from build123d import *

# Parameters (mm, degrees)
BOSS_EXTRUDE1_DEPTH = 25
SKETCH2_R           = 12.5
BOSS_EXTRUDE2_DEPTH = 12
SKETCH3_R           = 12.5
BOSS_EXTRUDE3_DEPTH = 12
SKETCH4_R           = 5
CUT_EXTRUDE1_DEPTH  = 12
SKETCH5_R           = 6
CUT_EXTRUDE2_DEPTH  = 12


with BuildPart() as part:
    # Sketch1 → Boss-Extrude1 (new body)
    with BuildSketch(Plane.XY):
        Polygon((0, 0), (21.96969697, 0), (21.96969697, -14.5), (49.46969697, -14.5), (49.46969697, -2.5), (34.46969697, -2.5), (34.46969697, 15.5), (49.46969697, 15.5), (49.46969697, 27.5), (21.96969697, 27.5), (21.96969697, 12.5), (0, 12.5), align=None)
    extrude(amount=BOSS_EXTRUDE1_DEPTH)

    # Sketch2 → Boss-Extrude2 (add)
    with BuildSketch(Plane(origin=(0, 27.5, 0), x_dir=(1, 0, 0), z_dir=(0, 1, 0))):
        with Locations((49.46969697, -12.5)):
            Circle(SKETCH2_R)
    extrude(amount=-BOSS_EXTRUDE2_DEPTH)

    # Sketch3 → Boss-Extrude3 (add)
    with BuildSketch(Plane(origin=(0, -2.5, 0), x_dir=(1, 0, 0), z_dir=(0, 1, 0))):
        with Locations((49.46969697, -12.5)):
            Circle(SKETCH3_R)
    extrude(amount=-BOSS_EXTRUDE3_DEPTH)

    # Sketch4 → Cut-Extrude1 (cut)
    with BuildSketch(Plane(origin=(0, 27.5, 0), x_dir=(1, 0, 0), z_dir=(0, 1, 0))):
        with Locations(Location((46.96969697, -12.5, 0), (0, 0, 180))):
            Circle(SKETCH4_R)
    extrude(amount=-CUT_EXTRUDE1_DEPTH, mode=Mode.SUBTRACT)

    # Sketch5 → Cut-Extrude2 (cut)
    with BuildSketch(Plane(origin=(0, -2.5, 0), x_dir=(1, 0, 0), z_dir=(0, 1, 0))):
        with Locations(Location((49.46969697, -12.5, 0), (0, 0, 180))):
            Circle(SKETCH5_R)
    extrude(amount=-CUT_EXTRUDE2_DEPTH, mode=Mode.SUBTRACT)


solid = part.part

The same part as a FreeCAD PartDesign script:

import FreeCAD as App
import Part
import Sketcher

V = App.Vector


def add_polygon(sketch, points):
    """Adds a closed chain of lines whose ends are joined by coincident constraints."""
    first, n = sketch.GeometryCount, len(points)
    for a, b in zip(points, points[1:] + points[:1]):
        sketch.addGeometry(Part.LineSegment(App.Vector(*a, 0), App.Vector(*b, 0)), False)
    for i in range(n):
        sketch.addConstraint(Sketcher.Constraint("Coincident", first + i, 2, first + (i + 1) % n, 1))

doc = App.newDocument("Part")
params = doc.addObject("Spreadsheet::Sheet", "Params")
for row, (alias, value) in enumerate([
    ("sketch1_width", "15 mm"),
    ("sketch1_height", "12 mm"),
    ("sketch1_height2", "18 mm"),
    ("sketch1_width2", "27.5 mm"),
    ("sketch1_height3", "14.5 mm"),
    ("pad1_length", "25 mm"),
    ("sketch2_diameter", "25 mm"),
    ("pad2_length", "12 mm"),
    ("sketch3_diameter", "25 mm"),
    ("pad3_length", "12 mm"),
    ("sketch4_diameter", "10 mm"),
    ("pocket1_length", "12 mm"),
    ("sketch5_diameter", "12 mm"),
    ("pocket2_length", "12 mm"),
], start=1):
    params.set(f"A{row}", alias)
    params.set(f"B{row}", "=" + value)
    params.setAlias(f"B{row}", alias)

body = doc.addObject("PartDesign::Body", "Body")

# Sketch on XY plane
sketch1 = body.newObject("Sketcher::SketchObject", "Sketch")
sketch1.AttachmentSupport = (doc.getObject("XY_Plane"), [""])
sketch1.MapMode = "FlatFace"
add_polygon(sketch1, [(0, 0), (21.969697, 0), (21.969697, -14.5), (49.469697, -14.5), (49.469697, -2.5), (34.469697, -2.5), (34.469697, 15.5), (49.469697, 15.5), (49.469697, 27.5), (21.969697, 27.5), (21.969697, 12.5), (0, 12.5)])  # lines 0-11
sketch1.addConstraint([
    Sketcher.Constraint("Horizontal", 0),
    Sketcher.Constraint("Vertical", 1),
    Sketcher.Constraint("Horizontal", 2),
    Sketcher.Constraint("Vertical", 3),
    Sketcher.Constraint("Horizontal", 4),
    Sketcher.Constraint("Vertical", 5),
    Sketcher.Constraint("Horizontal", 6),
    Sketcher.Constraint("Vertical", 7),
    Sketcher.Constraint("Horizontal", 8),
    Sketcher.Constraint("Vertical", 9),
    Sketcher.Constraint("Horizontal", 10),
    Sketcher.Constraint("Vertical", 11),
    Sketcher.Constraint("Coincident", 11, 2, -1, 1),
    Sketcher.Constraint("Vertical", 3, 2, 6, 2),
    Sketcher.Constraint("Vertical", 1, 2, 8, 2),
    Sketcher.Constraint("Equal", 3, 7),
    Sketcher.Constraint("Equal", 6, 9),
    Sketcher.Constraint("DistanceX", 4, 2, 4, 1, 15.0),
    Sketcher.Constraint("DistanceY", 3, 1, 3, 2, 12.0),
    Sketcher.Constraint("DistanceY", 5, 1, 5, 2, 18.0),
    Sketcher.Constraint("DistanceX", 2, 1, 2, 2, 27.5),
    Sketcher.Constraint("DistanceY", 1, 2, 1, 1, 14.5),
    Sketcher.Constraint("DistanceX", 0, 1, 0, 2, 21.969697),
])
sketch1.setExpression("Constraints[29]", "Params.sketch1_width")
sketch1.setExpression("Constraints[30]", "Params.sketch1_height")
sketch1.setExpression("Constraints[31]", "Params.sketch1_height2")
sketch1.setExpression("Constraints[32]", "Params.sketch1_width2")
sketch1.setExpression("Constraints[33]", "Params.sketch1_height3")
pad1 = body.newObject("PartDesign::Pad", "Pad")
pad1.Profile = sketch1
pad1.setExpression("Length", "Params.pad1_length")

# Sketch on XZ plane
sketch2 = body.newObject("Sketcher::SketchObject", "Sketch001")
sketch2.AttachmentSupport = (doc.getObject("XZ_Plane"), [""])
sketch2.MapMode = "FlatFace"
sketch2.AttachmentOffset = App.Placement(V(0, 0, -27.5), App.Rotation())
sketch2.addGeometry(Part.Circle(V(49.469697, 12.5, 0), V(0, 0, 1), 12.5), False)
sketch2.addConstraint([
    Sketcher.Constraint("Diameter", 0, 25.0),
    Sketcher.Constraint("DistanceY", -1, 1, 0, 3, 12.5),
    Sketcher.Constraint("DistanceX", -1, 1, 0, 3, 49.469697),
])
sketch2.setExpression("Constraints[0]", "Params.sketch2_diameter")
pad2 = body.newObject("PartDesign::Pad", "Pad001")
pad2.Profile = sketch2
pad2.setExpression("Length", "Params.pad2_length")

# Sketch on XZ plane
sketch3 = body.newObject("Sketcher::SketchObject", "Sketch002")
sketch3.AttachmentSupport = (doc.getObject("XZ_Plane"), [""])
sketch3.MapMode = "FlatFace"
sketch3.AttachmentOffset = App.Placement(V(0, 0, 2.5), App.Rotation())
sketch3.addGeometry(Part.Circle(V(49.469697, 12.5, 0), V(0, 0, 1), 12.5), False)
sketch3.addConstraint([
    Sketcher.Constraint("Diameter", 0, 25.0),
    Sketcher.Constraint("DistanceY", -1, 1, 0, 3, 12.5),
    Sketcher.Constraint("DistanceX", -1, 1, 0, 3, 49.469697),
])
sketch3.setExpression("Constraints[0]", "Params.sketch3_diameter")
pad3 = body.newObject("PartDesign::Pad", "Pad002")
pad3.Profile = sketch3
pad3.setExpression("Length", "Params.pad3_length")

# Sketch on XZ plane
sketch4 = body.newObject("Sketcher::SketchObject", "Sketch003")
sketch4.AttachmentSupport = (doc.getObject("XZ_Plane"), [""])
sketch4.MapMode = "FlatFace"
sketch4.AttachmentOffset = App.Placement(V(0, 0, -27.5), App.Rotation())
sketch4.addGeometry(Part.Circle(V(46.969697, 12.5, 0), V(0, 0, 1), 5), False)
sketch4.addConstraint([
    Sketcher.Constraint("Diameter", 0, 10.0),
    Sketcher.Constraint("DistanceY", -1, 1, 0, 3, 12.5),
    Sketcher.Constraint("DistanceX", -1, 1, 0, 3, 46.969697),
])
sketch4.setExpression("Constraints[0]", "Params.sketch4_diameter")
pocket1 = body.newObject("PartDesign::Pocket", "Pocket")
pocket1.Profile = sketch4
pocket1.setExpression("Length", "Params.pocket1_length")
pocket1.Reversed = True

# Sketch on XZ plane
sketch5 = body.newObject("Sketcher::SketchObject", "Sketch004")
sketch5.AttachmentSupport = (doc.getObject("XZ_Plane"), [""])
sketch5.MapMode = "FlatFace"
sketch5.AttachmentOffset = App.Placement(V(0, 0, 2.5), App.Rotation())
sketch5.addGeometry(Part.Circle(V(49.469697, 12.5, 0), V(0, 0, 1), 6), False)
sketch5.addConstraint([
    Sketcher.Constraint("Diameter", 0, 12.0),
    Sketcher.Constraint("DistanceY", -1, 1, 0, 3, 12.5),
    Sketcher.Constraint("DistanceX", -1, 1, 0, 3, 49.469697),
])
sketch5.setExpression("Constraints[0]", "Params.sketch5_diameter")
pocket2 = body.newObject("PartDesign::Pocket", "Pocket001")
pocket2.Profile = sketch5
pocket2.setExpression("Length", "Params.pocket2_length")
pocket2.Reversed = True

doc.recompute()
